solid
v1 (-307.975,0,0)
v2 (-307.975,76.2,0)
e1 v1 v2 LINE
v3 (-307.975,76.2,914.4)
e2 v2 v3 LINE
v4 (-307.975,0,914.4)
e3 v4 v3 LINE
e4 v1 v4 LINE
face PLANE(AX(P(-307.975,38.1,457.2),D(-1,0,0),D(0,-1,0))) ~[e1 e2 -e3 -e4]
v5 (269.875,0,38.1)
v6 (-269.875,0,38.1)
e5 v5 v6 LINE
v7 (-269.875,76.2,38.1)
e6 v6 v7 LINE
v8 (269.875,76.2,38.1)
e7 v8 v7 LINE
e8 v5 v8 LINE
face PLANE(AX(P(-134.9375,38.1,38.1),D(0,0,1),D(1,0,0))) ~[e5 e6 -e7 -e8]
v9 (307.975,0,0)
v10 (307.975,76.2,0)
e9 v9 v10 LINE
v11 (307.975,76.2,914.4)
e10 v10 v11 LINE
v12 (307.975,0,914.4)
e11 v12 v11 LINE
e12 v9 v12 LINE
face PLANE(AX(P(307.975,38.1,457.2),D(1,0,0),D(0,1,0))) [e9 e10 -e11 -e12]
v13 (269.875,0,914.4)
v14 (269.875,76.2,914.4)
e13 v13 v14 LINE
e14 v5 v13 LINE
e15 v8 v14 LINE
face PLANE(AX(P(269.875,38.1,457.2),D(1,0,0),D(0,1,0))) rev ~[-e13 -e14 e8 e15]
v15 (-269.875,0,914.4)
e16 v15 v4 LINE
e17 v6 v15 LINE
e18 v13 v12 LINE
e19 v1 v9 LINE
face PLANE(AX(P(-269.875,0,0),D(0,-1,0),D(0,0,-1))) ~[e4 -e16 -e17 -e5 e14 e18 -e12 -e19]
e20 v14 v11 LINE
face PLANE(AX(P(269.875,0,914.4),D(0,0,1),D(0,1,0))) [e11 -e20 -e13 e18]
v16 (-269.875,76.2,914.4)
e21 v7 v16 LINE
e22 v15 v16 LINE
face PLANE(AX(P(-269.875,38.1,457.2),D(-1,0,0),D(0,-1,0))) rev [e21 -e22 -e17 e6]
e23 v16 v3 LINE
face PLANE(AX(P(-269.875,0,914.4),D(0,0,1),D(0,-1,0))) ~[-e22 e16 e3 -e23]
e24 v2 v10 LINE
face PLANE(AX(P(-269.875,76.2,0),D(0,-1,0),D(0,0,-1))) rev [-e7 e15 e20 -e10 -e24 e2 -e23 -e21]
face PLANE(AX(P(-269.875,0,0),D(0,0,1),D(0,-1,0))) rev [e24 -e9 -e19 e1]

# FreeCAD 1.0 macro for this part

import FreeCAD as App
import Part
import Sketcher
from FreeCAD import Vector
Q = App.Units.Quantity


def add_polygon(sketch, points):
    """Adds a closed chain of lines whose ends are joined by coincident constraints."""
    first, n = sketch.GeometryCount, len(points)
    for a, b in zip(points, points[1:] + points[:1]):
        sketch.addGeometry(Part.LineSegment(App.Vector(*a, 0), App.Vector(*b, 0)), False)
    for i in range(n):
        sketch.addConstraint(Sketcher.Constraint("Coincident", first + i, 2, first + (i + 1) % n, 1))

doc = App.newDocument("Part")
body = doc.addObject("PartDesign::Body", "Body")

# Sketch on XY plane
sketch1 = body.newObject("Sketcher::SketchObject", "Sketch")
sketch1.AttachmentSupport = (doc.getObject("XY_Plane"), [""])
sketch1.MapMode = "FlatFace"
add_polygon(sketch1, [(0, 76), (0, 0), (270, 0), (270, 76)])  # lines 0-3
sketch1.addConstraint([
    Sketcher.Constraint("Vertical", 0),
    Sketcher.Constraint("Horizontal", 1),
    Sketcher.Constraint("Vertical", 2),
    Sketcher.Constraint("Horizontal", 3),
    Sketcher.Constraint("Coincident", 0, 2, -1, 1),
    Sketcher.Constraint("DistanceY", 0, 2, 0, 1, Q("3 in")),
    Sketcher.Constraint("DistanceX", 1, 1, 1, 2, Q("10.625 in")),
])
pad1 = body.newObject("PartDesign::Pad", "Pad")
pad1.Profile = sketch1
pad1.Length = Q("1.5 in")

# Sketch on YZ plane
sketch2 = body.newObject("Sketcher::SketchObject", "Sketch001")
sketch2.AttachmentSupport = (doc.getObject("YZ_Plane"), [""])
sketch2.MapMode = "FlatFace"
sketch2.AttachmentOffset = App.Placement(Vector(0, 0, 10.625 * 25.4), App.Rotation())
add_polygon(sketch2, [(0, 914), (0, 0), (76, 0), (76, 914)])  # lines 0-3
sketch2.addConstraint([
    Sketcher.Constraint("Vertical", 0),
    Sketcher.Constraint("Horizontal", 1),
    Sketcher.Constraint("Vertical", 2),
    Sketcher.Constraint("Horizontal", 3),
    Sketcher.Constraint("Coincident", 0, 2, -1, 1),
    Sketcher.Constraint("DistanceX", 1, 1, 1, 2, Q("3 in")),
    Sketcher.Constraint("DistanceY", 0, 2, 0, 1, Q("36 in")),
])
pad2 = body.newObject("PartDesign::Pad", "Pad001")
pad2.Profile = sketch2
pad2.Length = Q("1.5 in")
body2 = doc.addObject("PartDesign::Body", "Body001")
doc.recompute()

body2.BaseFeature = body
doc.recompute()

mirroring = doc.addObject("Part::Mirroring", "Mirroring")
mirroring.Source = body
mirroring.Base = Vector(0, 0, 0)
mirroring.Normal = Vector(1, 0, 0)
body3 = doc.addObject("PartDesign::Body", "Body002")
body3.BaseFeature = mirroring
boolean = body2.newObject("PartDesign::Boolean", "Boolean")
boolean.Type = "Fuse"
boolean.addObjects([body3])
doc.recompute()
mirroring.Visibility = False

doc.recompute()
